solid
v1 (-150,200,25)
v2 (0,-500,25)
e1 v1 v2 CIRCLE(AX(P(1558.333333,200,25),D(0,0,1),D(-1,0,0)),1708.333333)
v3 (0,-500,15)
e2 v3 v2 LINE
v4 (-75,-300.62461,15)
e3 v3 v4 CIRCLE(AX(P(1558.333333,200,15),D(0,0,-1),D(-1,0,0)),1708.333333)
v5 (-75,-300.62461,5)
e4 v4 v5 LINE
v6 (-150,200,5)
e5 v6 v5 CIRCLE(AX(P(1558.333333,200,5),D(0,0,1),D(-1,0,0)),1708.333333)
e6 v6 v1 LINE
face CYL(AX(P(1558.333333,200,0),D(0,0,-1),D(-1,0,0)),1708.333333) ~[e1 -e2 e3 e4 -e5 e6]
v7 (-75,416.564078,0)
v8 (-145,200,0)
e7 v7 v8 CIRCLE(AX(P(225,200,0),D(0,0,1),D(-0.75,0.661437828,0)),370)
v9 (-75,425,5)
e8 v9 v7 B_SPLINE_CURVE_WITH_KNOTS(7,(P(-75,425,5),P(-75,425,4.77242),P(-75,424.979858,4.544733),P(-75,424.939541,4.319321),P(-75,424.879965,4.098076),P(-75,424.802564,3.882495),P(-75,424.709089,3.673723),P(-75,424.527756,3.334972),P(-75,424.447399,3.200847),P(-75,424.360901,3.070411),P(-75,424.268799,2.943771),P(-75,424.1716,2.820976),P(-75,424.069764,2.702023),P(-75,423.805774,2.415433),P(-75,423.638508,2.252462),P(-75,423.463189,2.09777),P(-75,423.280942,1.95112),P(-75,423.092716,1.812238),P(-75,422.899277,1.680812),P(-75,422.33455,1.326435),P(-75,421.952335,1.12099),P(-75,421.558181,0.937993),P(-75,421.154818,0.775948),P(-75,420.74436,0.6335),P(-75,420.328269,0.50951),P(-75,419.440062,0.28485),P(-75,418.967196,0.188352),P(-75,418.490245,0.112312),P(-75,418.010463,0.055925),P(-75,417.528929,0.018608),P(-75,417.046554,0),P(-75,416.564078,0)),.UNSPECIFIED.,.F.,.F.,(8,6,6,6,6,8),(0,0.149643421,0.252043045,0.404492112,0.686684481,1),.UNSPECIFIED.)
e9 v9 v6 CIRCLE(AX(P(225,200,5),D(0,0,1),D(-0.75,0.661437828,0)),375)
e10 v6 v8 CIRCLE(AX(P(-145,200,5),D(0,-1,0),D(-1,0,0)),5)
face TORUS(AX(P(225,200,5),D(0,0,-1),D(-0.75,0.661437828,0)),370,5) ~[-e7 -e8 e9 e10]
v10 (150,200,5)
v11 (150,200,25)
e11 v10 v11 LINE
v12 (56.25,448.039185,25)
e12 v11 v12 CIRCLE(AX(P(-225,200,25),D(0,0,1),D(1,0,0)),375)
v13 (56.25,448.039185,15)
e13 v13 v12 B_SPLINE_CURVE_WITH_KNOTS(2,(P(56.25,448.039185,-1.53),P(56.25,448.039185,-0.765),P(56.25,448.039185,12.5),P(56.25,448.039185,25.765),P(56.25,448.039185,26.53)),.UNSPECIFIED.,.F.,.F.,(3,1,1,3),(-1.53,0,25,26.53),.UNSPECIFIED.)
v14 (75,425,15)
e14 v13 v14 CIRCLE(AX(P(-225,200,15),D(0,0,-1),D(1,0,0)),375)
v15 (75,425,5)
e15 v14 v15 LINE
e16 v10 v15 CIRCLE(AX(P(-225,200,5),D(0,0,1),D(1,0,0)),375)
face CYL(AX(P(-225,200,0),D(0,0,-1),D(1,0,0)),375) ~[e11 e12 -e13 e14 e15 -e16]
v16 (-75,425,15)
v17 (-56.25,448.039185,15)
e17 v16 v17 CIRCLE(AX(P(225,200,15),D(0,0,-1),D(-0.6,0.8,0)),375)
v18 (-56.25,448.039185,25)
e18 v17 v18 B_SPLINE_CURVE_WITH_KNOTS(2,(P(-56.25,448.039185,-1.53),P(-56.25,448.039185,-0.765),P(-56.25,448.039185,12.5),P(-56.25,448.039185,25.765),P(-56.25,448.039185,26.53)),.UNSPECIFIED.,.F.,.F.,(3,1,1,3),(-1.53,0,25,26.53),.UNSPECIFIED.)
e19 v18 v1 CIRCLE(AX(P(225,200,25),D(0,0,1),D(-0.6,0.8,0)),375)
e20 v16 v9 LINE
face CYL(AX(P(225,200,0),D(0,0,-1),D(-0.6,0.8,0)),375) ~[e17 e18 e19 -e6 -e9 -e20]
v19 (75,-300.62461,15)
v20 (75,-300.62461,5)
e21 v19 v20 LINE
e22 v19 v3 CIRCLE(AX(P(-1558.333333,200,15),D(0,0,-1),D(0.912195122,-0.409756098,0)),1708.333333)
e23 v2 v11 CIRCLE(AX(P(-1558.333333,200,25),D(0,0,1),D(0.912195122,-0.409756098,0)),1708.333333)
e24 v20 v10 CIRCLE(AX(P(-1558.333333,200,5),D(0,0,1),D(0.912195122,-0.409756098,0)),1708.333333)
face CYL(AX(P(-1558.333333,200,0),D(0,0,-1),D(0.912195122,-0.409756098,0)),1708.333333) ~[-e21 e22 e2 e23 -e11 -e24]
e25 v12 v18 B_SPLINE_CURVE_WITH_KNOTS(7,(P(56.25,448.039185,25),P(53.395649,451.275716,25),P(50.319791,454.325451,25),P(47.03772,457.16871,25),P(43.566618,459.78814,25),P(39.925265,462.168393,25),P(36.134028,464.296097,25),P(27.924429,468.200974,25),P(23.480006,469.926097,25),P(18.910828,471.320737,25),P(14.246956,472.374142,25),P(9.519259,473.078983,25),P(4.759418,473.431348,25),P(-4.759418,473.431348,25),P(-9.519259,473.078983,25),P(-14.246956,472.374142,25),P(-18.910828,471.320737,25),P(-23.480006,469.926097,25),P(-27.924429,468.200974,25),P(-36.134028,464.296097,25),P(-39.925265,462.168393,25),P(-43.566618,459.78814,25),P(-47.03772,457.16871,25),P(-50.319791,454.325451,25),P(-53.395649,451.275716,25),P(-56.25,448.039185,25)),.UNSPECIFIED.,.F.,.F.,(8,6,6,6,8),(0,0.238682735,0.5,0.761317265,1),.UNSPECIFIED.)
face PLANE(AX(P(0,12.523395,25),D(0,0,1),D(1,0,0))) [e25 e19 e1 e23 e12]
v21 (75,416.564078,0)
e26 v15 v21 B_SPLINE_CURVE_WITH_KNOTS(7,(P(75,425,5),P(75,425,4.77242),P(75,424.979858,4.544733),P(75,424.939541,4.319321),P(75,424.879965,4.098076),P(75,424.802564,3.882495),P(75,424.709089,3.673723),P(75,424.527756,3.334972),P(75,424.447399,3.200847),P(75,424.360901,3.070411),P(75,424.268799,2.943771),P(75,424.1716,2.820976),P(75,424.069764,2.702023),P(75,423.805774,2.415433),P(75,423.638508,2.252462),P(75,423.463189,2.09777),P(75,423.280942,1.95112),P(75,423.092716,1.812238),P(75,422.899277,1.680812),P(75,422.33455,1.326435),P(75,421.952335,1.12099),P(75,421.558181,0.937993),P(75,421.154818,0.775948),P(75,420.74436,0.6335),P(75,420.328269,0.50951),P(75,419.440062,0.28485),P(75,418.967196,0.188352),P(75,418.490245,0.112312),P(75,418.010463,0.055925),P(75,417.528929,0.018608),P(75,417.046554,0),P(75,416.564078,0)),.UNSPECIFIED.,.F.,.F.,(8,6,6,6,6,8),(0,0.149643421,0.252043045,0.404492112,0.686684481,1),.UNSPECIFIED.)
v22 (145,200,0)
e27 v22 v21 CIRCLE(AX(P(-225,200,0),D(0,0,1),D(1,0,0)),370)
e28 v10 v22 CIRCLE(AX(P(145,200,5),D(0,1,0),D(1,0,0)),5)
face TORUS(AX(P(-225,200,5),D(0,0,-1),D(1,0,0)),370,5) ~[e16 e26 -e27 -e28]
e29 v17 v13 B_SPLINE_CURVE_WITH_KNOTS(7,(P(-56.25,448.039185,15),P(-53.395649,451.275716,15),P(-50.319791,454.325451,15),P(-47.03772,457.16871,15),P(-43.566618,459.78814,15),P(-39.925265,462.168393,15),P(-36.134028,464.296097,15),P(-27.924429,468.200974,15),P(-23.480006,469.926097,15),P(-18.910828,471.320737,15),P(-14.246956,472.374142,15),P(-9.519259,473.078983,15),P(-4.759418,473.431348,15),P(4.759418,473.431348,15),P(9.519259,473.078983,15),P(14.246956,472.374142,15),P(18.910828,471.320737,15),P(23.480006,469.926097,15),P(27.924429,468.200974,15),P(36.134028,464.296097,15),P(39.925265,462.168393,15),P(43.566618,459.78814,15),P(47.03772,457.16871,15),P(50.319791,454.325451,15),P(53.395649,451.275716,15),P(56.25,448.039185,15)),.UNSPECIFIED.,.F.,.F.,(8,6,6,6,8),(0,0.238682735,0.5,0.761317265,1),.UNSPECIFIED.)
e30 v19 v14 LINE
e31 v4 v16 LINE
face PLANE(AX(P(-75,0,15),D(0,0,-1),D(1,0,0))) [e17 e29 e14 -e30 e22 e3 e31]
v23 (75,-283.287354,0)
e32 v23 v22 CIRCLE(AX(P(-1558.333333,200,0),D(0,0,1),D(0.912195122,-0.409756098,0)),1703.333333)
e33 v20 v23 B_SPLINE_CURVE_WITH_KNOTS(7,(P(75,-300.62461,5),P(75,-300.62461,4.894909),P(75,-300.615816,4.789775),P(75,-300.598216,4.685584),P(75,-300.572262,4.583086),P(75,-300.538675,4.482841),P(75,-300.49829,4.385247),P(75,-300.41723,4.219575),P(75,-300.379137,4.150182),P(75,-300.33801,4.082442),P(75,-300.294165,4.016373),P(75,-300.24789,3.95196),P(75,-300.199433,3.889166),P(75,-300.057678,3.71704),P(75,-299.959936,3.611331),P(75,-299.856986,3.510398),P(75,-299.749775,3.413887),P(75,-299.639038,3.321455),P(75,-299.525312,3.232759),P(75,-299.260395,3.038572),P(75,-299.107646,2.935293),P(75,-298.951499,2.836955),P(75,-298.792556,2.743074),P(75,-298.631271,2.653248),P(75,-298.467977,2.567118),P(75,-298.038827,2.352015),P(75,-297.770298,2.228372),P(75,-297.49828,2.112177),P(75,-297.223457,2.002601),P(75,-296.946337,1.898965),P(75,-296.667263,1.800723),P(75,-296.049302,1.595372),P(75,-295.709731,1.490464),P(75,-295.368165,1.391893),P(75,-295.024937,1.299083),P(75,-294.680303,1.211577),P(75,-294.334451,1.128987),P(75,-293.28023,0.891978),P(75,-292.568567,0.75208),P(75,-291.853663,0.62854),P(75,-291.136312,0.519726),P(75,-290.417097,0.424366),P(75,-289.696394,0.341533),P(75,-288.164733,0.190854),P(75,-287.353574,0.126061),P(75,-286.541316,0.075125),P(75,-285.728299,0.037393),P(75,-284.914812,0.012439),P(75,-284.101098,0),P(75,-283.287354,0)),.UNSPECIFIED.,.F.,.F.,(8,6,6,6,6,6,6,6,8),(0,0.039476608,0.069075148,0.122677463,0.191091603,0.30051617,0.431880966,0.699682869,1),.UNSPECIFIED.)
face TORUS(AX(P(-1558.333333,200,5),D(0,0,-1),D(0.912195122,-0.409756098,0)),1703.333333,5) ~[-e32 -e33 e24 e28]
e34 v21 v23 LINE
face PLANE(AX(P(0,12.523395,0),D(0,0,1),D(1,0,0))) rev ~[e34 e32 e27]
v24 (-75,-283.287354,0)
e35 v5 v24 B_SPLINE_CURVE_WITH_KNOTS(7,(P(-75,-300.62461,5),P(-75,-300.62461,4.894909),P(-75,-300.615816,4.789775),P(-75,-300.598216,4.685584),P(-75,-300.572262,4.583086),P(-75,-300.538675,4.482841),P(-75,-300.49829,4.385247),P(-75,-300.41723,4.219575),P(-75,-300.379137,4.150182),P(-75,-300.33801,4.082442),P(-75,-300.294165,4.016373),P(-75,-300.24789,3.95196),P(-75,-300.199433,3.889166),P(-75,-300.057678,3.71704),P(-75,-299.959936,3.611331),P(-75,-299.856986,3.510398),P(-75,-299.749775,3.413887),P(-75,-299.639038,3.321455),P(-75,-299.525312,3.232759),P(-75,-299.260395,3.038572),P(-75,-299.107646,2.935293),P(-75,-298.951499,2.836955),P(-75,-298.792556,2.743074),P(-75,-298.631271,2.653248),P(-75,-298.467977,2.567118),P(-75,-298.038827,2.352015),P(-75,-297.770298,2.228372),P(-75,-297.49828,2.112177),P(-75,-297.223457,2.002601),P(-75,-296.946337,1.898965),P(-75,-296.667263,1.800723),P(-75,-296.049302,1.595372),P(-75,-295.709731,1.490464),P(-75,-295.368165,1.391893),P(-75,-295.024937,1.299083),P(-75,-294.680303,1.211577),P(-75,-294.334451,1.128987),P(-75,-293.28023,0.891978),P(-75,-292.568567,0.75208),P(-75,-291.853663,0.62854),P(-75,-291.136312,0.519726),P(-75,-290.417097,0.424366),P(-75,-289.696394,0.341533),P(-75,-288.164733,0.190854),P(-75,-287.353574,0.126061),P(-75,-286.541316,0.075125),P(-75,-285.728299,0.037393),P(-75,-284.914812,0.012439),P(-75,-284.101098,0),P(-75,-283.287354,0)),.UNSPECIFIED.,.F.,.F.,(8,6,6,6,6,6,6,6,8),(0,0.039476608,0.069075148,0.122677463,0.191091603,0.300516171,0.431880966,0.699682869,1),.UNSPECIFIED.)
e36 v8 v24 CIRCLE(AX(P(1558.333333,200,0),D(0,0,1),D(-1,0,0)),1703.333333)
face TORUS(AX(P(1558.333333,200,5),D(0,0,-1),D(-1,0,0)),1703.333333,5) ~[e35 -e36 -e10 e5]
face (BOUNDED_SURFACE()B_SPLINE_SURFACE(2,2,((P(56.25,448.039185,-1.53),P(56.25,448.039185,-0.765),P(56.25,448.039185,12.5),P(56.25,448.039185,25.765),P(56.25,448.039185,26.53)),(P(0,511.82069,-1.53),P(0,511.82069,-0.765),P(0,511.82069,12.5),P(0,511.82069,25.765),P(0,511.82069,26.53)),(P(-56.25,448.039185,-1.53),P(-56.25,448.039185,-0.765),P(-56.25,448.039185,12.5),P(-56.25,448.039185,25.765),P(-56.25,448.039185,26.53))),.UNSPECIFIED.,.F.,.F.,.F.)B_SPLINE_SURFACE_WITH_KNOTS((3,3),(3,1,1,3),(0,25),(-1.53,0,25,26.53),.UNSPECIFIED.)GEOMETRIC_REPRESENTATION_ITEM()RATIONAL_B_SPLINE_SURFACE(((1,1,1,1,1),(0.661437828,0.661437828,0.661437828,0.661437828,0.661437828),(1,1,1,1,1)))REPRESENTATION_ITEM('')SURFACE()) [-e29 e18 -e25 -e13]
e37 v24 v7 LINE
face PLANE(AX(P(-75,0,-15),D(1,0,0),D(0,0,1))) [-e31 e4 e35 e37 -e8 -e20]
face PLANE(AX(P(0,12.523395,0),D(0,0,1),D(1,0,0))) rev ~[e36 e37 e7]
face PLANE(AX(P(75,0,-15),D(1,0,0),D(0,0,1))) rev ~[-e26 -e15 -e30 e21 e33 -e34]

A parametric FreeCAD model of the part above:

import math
import FreeCAD as App
import Part
import Sketcher
Q = App.Units.Quantity


def edges_at(feature, points):
    """Names of the edges that pass closest to the given points."""
    edges = feature.Shape.Edges
    near = lambda p: min(range(len(edges)), key=lambda i: edges[i].distToShape(Part.Vertex(*p))[0])
    return sorted({f"Edge{near(p) + 1}" for p in points})

doc = App.newDocument("Part")
body = doc.addObject("PartDesign::Body", "Body")

# Sketch on XY plane
sketch1 = body.newObject("Sketcher::SketchObject", "Sketch")
sketch1.AttachmentSupport = (doc.getObject("XY_Plane"), [""])
sketch1.MapMode = "FlatFace"
sketch1.addGeometry([
    Part.ArcOfCircle(Part.Circle(App.Vector(-225, 200, 0), App.Vector(0, 0, 1), 375), math.radians(0), math.radians(53.130102)),
    Part.ArcOfCircle(Part.Circle(App.Vector(225, 200, 0), App.Vector(0, 0, 1), 375), math.radians(126.869898), math.radians(180)),
    Part.ArcOfCircle(Part.Circle(App.Vector(1558.333333, 200, 0), App.Vector(0, 0, 1), 1708.333333), math.radians(180), math.radians(204.189514)),
    Part.ArcOfCircle(Part.Circle(App.Vector(-1558.333333, 200, 0), App.Vector(0, 0, 1), 1708.333333), math.radians(-24.189514), math.radians(0)),
], False)
sketch1.addConstraint([
    Sketcher.Constraint("Coincident", 0, 2, 1, 1),
    Sketcher.Constraint("Tangent", 1, 2, 2, 1),
    Sketcher.Constraint("Coincident", 2, 2, 3, 1),
    Sketcher.Constraint("Tangent", 3, 2, 0, 1),
    Sketcher.Constraint("Equal", 0, 1),
    Sketcher.Constraint("Equal", 2, 3),
    Sketcher.Constraint("Symmetric", 0, 3, 1, 3, -2),
    Sketcher.Constraint("Horizontal", 1, 3, 2, 3),
    Sketcher.Constraint("Horizontal", 2, 3, 3, 3),
    Sketcher.Constraint("Radius", 0, Q("375 mm")),
    Sketcher.Constraint("DistanceX", 0, 3, -1, 1, Q("225 mm")),
    Sketcher.Constraint("DistanceY", -1, 1, 0, 3, Q("200 mm")),
    Sketcher.Constraint("Radius", 2, Q("1708.333333 mm")),
])
pad1 = body.newObject("PartDesign::Pad", "Pad")
pad1.Profile = sketch1
pad1.Length = 25
doc.recompute()

fillet = body.newObject("PartDesign::Fillet", "Fillet")
fillet.Base = (pad1, edges_at(pad1, [(0, 500, 12.5)]))
fillet.Radius = 75
doc.recompute()

fillet2 = body.newObject("PartDesign::Fillet", "Fillet001")
fillet2.Base = (fillet, edges_at(fillet, [
    (125.78, 332.583, 0),
    (0, 473.431, 0),
    (112.079, -157.946, 0),
    (-125.78, 332.583, 0),
    (-112.079, -157.946, 0),
]))
fillet2.Radius = 5

# Sketch on XZ plane
sketch2 = body.newObject("Sketcher::SketchObject", "Sketch001")
sketch2.AttachmentSupport = (doc.getObject("XZ_Plane"), [""])
sketch2.MapMode = "FlatFace"
sketch2.addGeometry([
    Part.LineSegment(App.Vector(-75, 15, 0), App.Vector(-75, -15, 0)),
    Part.LineSegment(App.Vector(-75, -15, 0), App.Vector(75, -15, 0)),
    Part.LineSegment(App.Vector(75, -15, 0), App.Vector(75, 15, 0)),
    Part.LineSegment(App.Vector(75, 15, 0), App.Vector(-75, 15, 0)),
], False)
sketch2.addConstraint([
    Sketcher.Constraint("Coincident", 0, 2, 1, 1),
    Sketcher.Constraint("Coincident", 1, 2, 2, 1),
    Sketcher.Constraint("Coincident", 2, 2, 3, 1),
    Sketcher.Constraint("Coincident", 3, 2, 0, 1),
    Sketcher.Constraint("Vertical", 0),
    Sketcher.Constraint("Horizontal", 1),
    Sketcher.Constraint("Vertical", 2),
    Sketcher.Constraint("Horizontal", 3),
    Sketcher.Constraint("Symmetric", 0, 2, 2, 2, -1, 1),
    Sketcher.Constraint("DistanceX", 1, 1, 1, 2, Q("150 mm")),
    Sketcher.Constraint("DistanceY", 0, 2, 0, 1, Q("30 mm")),
])
pocket1 = body.newObject("PartDesign::Pocket", "Pocket")
pocket1.Profile = sketch2
pocket1.Type = "ThroughAll"
pocket1.Midplane = True

doc.recompute()
